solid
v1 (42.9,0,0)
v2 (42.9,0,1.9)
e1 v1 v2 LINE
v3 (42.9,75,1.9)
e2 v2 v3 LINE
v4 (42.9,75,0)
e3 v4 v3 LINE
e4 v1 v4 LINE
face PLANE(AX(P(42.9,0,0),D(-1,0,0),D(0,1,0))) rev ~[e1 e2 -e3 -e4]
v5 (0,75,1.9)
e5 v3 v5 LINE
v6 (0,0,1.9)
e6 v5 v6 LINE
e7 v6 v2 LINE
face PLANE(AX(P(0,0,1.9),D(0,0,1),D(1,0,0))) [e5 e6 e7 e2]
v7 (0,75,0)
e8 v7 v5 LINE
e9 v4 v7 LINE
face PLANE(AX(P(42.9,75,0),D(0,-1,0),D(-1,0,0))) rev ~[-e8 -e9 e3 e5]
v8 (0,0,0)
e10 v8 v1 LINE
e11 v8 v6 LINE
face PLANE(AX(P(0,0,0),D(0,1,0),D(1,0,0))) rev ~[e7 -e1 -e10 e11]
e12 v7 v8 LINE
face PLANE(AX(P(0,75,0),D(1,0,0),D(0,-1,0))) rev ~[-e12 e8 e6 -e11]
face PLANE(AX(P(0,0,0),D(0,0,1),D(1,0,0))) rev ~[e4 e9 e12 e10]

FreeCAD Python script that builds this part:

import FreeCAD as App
import Part
import Sketcher
from FreeCAD import Vector
Q = App.Units.Quantity

doc = App.newDocument("Part")
body = doc.addObject("PartDesign::Body", "Body")

# Sketch on XY plane
sketch1 = body.newObject("Sketcher::SketchObject", "Sketch")
sketch1.AttachmentSupport = (doc.getObject("XY_Plane"), [""])
sketch1.MapMode = "FlatFace"
sketch1.addGeometry([
    Part.LineSegment(Vector(0, 75, 0), Vector(0, 0, 0)),
    Part.LineSegment(Vector(0, 0, 0), Vector(43, 0, 0)),
    Part.LineSegment(Vector(43, 0, 0), Vector(43, 75, 0)),
    Part.LineSegment(Vector(43, 75, 0), Vector(0, 75, 0)),
], False)
sketch1.addConstraint([
    Sketcher.Constraint("Coincident", 0, 2, 1, 1),
    Sketcher.Constraint("Coincident", 1, 2, 2, 1),
    Sketcher.Constraint("Coincident", 2, 2, 3, 1),
    Sketcher.Constraint("Coincident", 3, 2, 0, 1),
    Sketcher.Constraint("Vertical", 0),
    Sketcher.Constraint("Horizontal", 1),
    Sketcher.Constraint("Vertical", 2),
    Sketcher.Constraint("Horizontal", 3),
    Sketcher.Constraint("Coincident", 0, 2, -1, 1),
    Sketcher.Constraint("DistanceY", 0, 2, 0, 1, Q("75 mm")),
    Sketcher.Constraint("DistanceX", 1, 1, 1, 2, Q("42.9 mm")),
])
pad1 = body.newObject("PartDesign::Pad", "Pad")
pad1.Profile = sketch1
pad1.Length = 1.9

doc.recompute()
